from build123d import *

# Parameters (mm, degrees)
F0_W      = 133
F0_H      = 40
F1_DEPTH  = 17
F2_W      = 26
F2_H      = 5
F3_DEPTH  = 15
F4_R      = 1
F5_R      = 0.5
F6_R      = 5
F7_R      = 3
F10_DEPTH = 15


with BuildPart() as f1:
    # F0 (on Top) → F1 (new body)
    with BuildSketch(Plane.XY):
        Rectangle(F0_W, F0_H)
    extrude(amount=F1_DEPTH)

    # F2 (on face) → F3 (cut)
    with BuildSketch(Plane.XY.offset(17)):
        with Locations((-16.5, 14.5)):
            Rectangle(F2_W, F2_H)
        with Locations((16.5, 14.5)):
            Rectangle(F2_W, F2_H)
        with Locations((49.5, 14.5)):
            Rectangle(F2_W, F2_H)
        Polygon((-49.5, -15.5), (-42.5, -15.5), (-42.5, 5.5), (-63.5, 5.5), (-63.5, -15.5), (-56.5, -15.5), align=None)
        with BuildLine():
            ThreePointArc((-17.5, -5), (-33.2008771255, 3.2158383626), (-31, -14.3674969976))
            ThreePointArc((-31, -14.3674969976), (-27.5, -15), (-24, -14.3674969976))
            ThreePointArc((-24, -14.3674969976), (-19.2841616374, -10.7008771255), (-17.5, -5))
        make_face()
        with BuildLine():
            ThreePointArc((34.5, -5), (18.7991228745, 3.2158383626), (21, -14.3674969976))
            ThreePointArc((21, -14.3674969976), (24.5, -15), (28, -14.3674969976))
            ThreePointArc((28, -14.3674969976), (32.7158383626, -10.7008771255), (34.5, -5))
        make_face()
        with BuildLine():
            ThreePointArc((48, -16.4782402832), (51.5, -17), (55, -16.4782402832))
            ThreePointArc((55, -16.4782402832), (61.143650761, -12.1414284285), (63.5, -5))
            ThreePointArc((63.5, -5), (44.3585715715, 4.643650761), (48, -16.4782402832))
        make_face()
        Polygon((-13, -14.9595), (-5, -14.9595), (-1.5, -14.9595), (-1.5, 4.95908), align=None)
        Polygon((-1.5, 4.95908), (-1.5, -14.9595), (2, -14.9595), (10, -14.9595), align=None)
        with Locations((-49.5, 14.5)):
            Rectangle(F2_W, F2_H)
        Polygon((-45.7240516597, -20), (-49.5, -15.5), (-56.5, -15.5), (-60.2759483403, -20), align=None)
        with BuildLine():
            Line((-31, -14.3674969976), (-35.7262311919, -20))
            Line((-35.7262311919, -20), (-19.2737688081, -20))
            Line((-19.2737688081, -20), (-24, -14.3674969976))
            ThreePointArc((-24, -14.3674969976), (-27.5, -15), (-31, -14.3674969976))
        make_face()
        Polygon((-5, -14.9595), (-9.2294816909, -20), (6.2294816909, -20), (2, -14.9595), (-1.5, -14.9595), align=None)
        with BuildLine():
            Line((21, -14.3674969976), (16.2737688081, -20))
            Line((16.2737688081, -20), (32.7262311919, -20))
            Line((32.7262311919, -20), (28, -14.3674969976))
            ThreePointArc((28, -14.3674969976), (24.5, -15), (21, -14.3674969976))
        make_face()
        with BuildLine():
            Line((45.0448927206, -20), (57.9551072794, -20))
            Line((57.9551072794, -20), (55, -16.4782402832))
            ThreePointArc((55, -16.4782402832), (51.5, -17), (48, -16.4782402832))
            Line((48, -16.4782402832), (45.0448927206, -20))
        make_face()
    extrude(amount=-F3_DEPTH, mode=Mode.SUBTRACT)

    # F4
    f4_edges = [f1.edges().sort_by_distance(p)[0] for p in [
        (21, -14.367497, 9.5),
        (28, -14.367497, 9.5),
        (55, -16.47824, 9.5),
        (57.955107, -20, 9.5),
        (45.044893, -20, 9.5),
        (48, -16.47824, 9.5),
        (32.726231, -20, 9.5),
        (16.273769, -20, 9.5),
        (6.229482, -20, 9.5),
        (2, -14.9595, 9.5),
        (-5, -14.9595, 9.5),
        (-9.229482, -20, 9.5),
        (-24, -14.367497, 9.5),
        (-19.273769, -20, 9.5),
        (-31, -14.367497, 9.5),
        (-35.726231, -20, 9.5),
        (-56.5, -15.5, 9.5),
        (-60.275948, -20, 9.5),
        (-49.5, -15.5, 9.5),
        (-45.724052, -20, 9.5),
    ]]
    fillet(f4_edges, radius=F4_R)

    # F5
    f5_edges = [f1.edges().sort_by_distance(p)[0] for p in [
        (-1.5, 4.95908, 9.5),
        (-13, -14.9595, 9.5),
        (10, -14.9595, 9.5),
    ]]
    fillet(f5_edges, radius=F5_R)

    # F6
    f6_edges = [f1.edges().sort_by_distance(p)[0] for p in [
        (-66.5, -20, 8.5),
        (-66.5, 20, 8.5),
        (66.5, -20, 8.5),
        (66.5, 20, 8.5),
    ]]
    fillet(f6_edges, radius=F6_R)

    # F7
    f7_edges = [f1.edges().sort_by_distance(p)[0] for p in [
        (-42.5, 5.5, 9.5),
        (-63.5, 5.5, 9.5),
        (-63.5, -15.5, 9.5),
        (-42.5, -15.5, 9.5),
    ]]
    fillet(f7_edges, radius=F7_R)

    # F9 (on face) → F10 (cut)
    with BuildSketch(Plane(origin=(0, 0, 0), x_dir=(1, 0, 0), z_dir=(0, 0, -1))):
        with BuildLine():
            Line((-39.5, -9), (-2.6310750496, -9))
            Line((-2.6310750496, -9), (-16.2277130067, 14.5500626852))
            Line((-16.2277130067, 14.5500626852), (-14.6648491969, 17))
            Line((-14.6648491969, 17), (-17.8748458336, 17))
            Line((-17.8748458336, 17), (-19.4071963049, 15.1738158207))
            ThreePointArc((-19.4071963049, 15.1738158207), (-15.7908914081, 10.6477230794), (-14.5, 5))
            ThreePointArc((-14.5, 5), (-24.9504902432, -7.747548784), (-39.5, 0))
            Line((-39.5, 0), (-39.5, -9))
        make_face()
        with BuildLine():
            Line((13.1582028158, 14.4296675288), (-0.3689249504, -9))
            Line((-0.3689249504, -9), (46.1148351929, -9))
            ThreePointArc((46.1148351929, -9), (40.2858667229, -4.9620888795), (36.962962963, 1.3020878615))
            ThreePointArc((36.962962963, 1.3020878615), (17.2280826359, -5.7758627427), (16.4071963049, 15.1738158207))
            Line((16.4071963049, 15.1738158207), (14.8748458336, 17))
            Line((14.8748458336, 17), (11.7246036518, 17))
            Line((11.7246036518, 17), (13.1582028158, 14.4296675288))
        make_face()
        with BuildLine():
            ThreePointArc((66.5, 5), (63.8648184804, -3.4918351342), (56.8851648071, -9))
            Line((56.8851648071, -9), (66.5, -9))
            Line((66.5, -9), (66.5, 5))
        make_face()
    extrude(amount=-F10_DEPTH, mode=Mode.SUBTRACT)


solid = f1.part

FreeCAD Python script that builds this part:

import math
import FreeCAD as App
import Part
import Sketcher

V = App.Vector
Q = App.Units.Quantity


def edges_at(feature, points):
    """Names of the edges that pass closest to the given points."""
    edges = feature.Shape.Edges
    near = lambda p: min(range(len(edges)), key=lambda i: edges[i].distToShape(Part.Vertex(*p))[0])
    return sorted({f"Edge{near(p) + 1}" for p in points})


def add_polygon(sketch, points):
    """Adds a closed chain of lines whose ends are joined by coincident constraints."""
    first, n = sketch.GeometryCount, len(points)
    for a, b in zip(points, points[1:] + points[:1]):
        sketch.addGeometry(Part.LineSegment(App.Vector(*a, 0), App.Vector(*b, 0)), False)
    for i in range(n):
        sketch.addConstraint(Sketcher.Constraint("Coincident", first + i, 2, first + (i + 1) % n, 1))

doc = App.newDocument("Part")
body = doc.addObject("PartDesign::Body", "Body")

# Sketch on XY plane
sketch1 = doc.addObject("Sketcher::SketchObject", "Sketch")
body.addObject(sketch1)
sketch1.AttachmentSupport = (doc.XY_Plane, [""])
sketch1.MapMode = "FlatFace"
add_polygon(sketch1, [(-66.5, 20), (-66.5, -20), (66.5, -20), (66.5, 20)])  # lines 0-3
sketch1.addConstraint(Sketcher.Constraint("Vertical", 0))
sketch1.addConstraint(Sketcher.Constraint("Horizontal", 1))
sketch1.addConstraint(Sketcher.Constraint("Vertical", 2))
sketch1.addConstraint(Sketcher.Constraint("Horizontal", 3))
sketch1.addConstraint(Sketcher.Constraint("Symmetric", 0, 2, 2, 2, -1, 1))
sketch1.addConstraint(Sketcher.Constraint("DistanceX", 1, 1, 1, 2, 133.0))
sketch1.addConstraint(Sketcher.Constraint("DistanceY", 0, 2, 0, 1, 40.0))
pad1 = doc.addObject("PartDesign::Pad", "Pad")
body.addObject(pad1)
pad1.Profile = sketch1
pad1.Length = 17

# Sketch on XY plane
sketch2 = doc.addObject("Sketcher::SketchObject", "Sketch001")
body.addObject(sketch2)
sketch2.AttachmentSupport = (doc.XY_Plane, [""])
sketch2.MapMode = "FlatFace"
sketch2.AttachmentOffset = App.Placement(V(0, 0, 17), App.Rotation())
add_polygon(sketch2, [(-29.5, 17), (-29.5, 12), (-3.5, 12), (-3.5, 17)])  # lines 0-3
add_polygon(sketch2, [(3.5, 17), (3.5, 12), (29.5, 12), (29.5, 17)])  # lines 4-7
add_polygon(sketch2, [(36.5, 17), (36.5, 12), (62.5, 12), (62.5, 17)])  # lines 8-11
add_polygon(sketch2, [(-42.5, -15.5), (-42.5, 5.5), (-63.5, 5.5), (-63.5, -15.5), (-56.5, -15.5), (-60.275948, -20), (-45.724052, -20), (-49.5, -15.5)])  # lines 12-19
sketch2.addGeometry(Part.ArcOfCircle(Part.Circle(V(-27.5, -5, 0), V(0, 0, 1), 10), math.radians(0), math.radians(249.512685)), False)  # 20
sketch2.addGeometry(Part.LineSegment(V(-31, -14.367497, 0), V(-35.726231, -20, 0)), False)  # 21
sketch2.addGeometry(Part.LineSegment(V(-35.726231, -20, 0), V(-19.273769, -20, 0)), False)  # 22
sketch2.addGeometry(Part.LineSegment(V(-19.273769, -20, 0), V(-24, -14.367497, 0)), False)  # 23
sketch2.addGeometry(Part.ArcOfCircle(Part.Circle(V(-27.5, -5, 0), V(0, 0, 1), 10), math.radians(-69.512685), math.radians(0)), False)  # 24
sketch2.addGeometry(Part.ArcOfCircle(Part.Circle(V(24.5, -5, 0), V(0, 0, 1), 10), math.radians(0), math.radians(249.512685)), False)  # 25
sketch2.addGeometry(Part.LineSegment(V(21, -14.367497, 0), V(16.273769, -20, 0)), False)  # 26
sketch2.addGeometry(Part.LineSegment(V(16.273769, -20, 0), V(32.726231, -20, 0)), False)  # 27
sketch2.addGeometry(Part.LineSegment(V(32.726231, -20, 0), V(28, -14.367497, 0)), False)  # 28
sketch2.addGeometry(Part.ArcOfCircle(Part.Circle(V(24.5, -5, 0), V(0, 0, 1), 10), math.radians(-69.512685), math.radians(0)), False)  # 29
sketch2.addGeometry(Part.ArcOfCircle(Part.Circle(V(51.5, -5, 0), V(0, 0, 1), 12), math.radians(-73.042237), math.radians(253.042237)), False)  # 30
sketch2.addGeometry(Part.LineSegment(V(48, -16.47824, 0), V(45.044893, -20, 0)), False)  # 31
sketch2.addGeometry(Part.LineSegment(V(45.044893, -20, 0), V(57.955107, -20, 0)), False)  # 32
sketch2.addGeometry(Part.LineSegment(V(57.955107, -20, 0), V(55, -16.47824, 0)), False)  # 33
add_polygon(sketch2, [(-13, -14.9595), (-5, -14.9595), (-9.229482, -20), (6.229482, -20), (2, -14.9595), (10, -14.9595), (-1.5, 4.95908)])  # lines 34-40
add_polygon(sketch2, [(-62.5, 17), (-62.5, 12), (-36.5, 12), (-36.5, 17)])  # lines 41-44
sketch2.addConstraint(Sketcher.Constraint("Coincident", 20, 2, 21, 1))
sketch2.addConstraint(Sketcher.Constraint("Coincident", 21, 2, 22, 1))
sketch2.addConstraint(Sketcher.Constraint("Coincident", 22, 2, 23, 1))
sketch2.addConstraint(Sketcher.Constraint("Coincident", 23, 2, 24, 1))
sketch2.addConstraint(Sketcher.Constraint("Tangent", 24, 2, 20, 1))
sketch2.addConstraint(Sketcher.Constraint("Coincident", 25, 2, 26, 1))
sketch2.addConstraint(Sketcher.Constraint("Coincident", 26, 2, 27, 1))
sketch2.addConstraint(Sketcher.Constraint("Coincident", 27, 2, 28, 1))
sketch2.addConstraint(Sketcher.Constraint("Coincident", 28, 2, 29, 1))
sketch2.addConstraint(Sketcher.Constraint("Tangent", 29, 2, 25, 1))
sketch2.addConstraint(Sketcher.Constraint("Coincident", 30, 2, 31, 1))
sketch2.addConstraint(Sketcher.Constraint("Coincident", 31, 2, 32, 1))
sketch2.addConstraint(Sketcher.Constraint("Coincident", 32, 2, 33, 1))
sketch2.addConstraint(Sketcher.Constraint("Coincident", 33, 2, 30, 1))
sketch2.addConstraint(Sketcher.Constraint("Vertical", 0))
sketch2.addConstraint(Sketcher.Constraint("Horizontal", 1))
sketch2.addConstraint(Sketcher.Constraint("Vertical", 2))
sketch2.addConstraint(Sketcher.Constraint("Horizontal", 3))
sketch2.addConstraint(Sketcher.Constraint("Vertical", 4))
sketch2.addConstraint(Sketcher.Constraint("Horizontal", 5))
sketch2.addConstraint(Sketcher.Constraint("Vertical", 6))
sketch2.addConstraint(Sketcher.Constraint("Horizontal", 7))
sketch2.addConstraint(Sketcher.Constraint("Vertical", 8))
sketch2.addConstraint(Sketcher.Constraint("Horizontal", 9))
sketch2.addConstraint(Sketcher.Constraint("Vertical", 10))
sketch2.addConstraint(Sketcher.Constraint("Horizontal", 11))
sketch2.addConstraint(Sketcher.Constraint("Vertical", 12))
sketch2.addConstraint(Sketcher.Constraint("Horizontal", 13))
sketch2.addConstraint(Sketcher.Constraint("Vertical", 14))
sketch2.addConstraint(Sketcher.Constraint("Horizontal", 15))
sketch2.addConstraint(Sketcher.Constraint("Horizontal", 17))
sketch2.addConstraint(Sketcher.Constraint("Horizontal", 19))
sketch2.addConstraint(Sketcher.Constraint("Horizontal", 22))
sketch2.addConstraint(Sketcher.Constraint("Horizontal", 27))
sketch2.addConstraint(Sketcher.Constraint("Horizontal", 32))
sketch2.addConstraint(Sketcher.Constraint("Horizontal", 34))
sketch2.addConstraint(Sketcher.Constraint("Horizontal", 36))
sketch2.addConstraint(Sketcher.Constraint("Horizontal", 38))
sketch2.addConstraint(Sketcher.Constraint("Vertical", 41))
sketch2.addConstraint(Sketcher.Constraint("Horizontal", 42))
sketch2.addConstraint(Sketcher.Constraint("Vertical", 43))
sketch2.addConstraint(Sketcher.Constraint("Horizontal", 44))
sketch2.addConstraint(Sketcher.Constraint("Equal", 20, 24))
sketch2.addConstraint(Sketcher.Constraint("Equal", 24, 25))
sketch2.addConstraint(Sketcher.Constraint("Equal", 25, 29))
sketch2.addConstraint(Sketcher.Constraint("Symmetric", 1, 2, 4, 2, -2))
sketch2.addConstraint(Sketcher.Constraint("Symmetric", 3, 2, 6, 2, -2))
sketch2.addConstraint(Sketcher.Constraint("Symmetric", 9, 2, 41, 2, -2))
sketch2.addConstraint(Sketcher.Constraint("Symmetric", 11, 2, 43, 2, -2))
sketch2.addConstraint(Sketcher.Constraint("Parallel", 16, 21))
sketch2.addConstraint(Sketcher.Constraint("Parallel", 18, 23))
sketch2.addConstraint(Sketcher.Constraint("Parallel", 21, 26))
sketch2.addConstraint(Sketcher.Constraint("Parallel", 23, 28))
sketch2.addConstraint(Sketcher.Constraint("Parallel", 26, 31))
sketch2.addConstraint(Sketcher.Constraint("Parallel", 28, 33))
sketch2.addConstraint(Sketcher.Constraint("Parallel", 31, 35))
sketch2.addConstraint(Sketcher.Constraint("Parallel", 33, 37))
sketch2.addConstraint(Sketcher.Constraint("Horizontal", 24, 3, 25, 3))
sketch2.addConstraint(Sketcher.Constraint("Horizontal", 29, 3, 30, 3))
sketch2.addConstraint(Sketcher.Constraint("Horizontal", 5, 2, 8, 2))
sketch2.addConstraint(Sketcher.Constraint("Horizontal", 7, 2, 10, 2))
sketch2.addConstraint(Sketcher.Constraint("Horizontal", 15, 2, 18, 2))
sketch2.addConstraint(Sketcher.Constraint("Horizontal", 17, 2, 21, 2))
sketch2.addConstraint(Sketcher.Constraint("Horizontal", 20, 2, 23, 2))
sketch2.addConstraint(Sketcher.Constraint("Horizontal", 30, 3, 24, 2))
sketch2.addConstraint(Sketcher.Constraint("Horizontal", 23, 2, 25, 2))
sketch2.addConstraint(Sketcher.Constraint("Horizontal", 22, 2, 26, 2))
sketch2.addConstraint(Sketcher.Constraint("Horizontal", 25, 2, 28, 2))
sketch2.addConstraint(Sketcher.Constraint("Horizontal", 24, 2, 29, 2))
sketch2.addConstraint(Sketcher.Constraint("Horizontal", 27, 2, 31, 2))
sketch2.addConstraint(Sketcher.Constraint("Horizontal", 30, 2, 33, 2))
sketch2.addConstraint(Sketcher.Constraint("Horizontal", 32, 2, 35, 2))
sketch2.addConstraint(Sketcher.Constraint("Horizontal", 34, 2, 37, 2))
sketch2.addConstraint(Sketcher.Constraint("Equal", 7, 9))
sketch2.addConstraint(Sketcher.Constraint("Equal", 15, 19))
sketch2.addConstraint(Sketcher.Constraint("Equal", 34, 38))
sketch2.addConstraint(Sketcher.Constraint("Equal", 13, 12))
sketch2.addConstraint(Sketcher.Constraint("Equal", 16, 18))
sketch2.addConstraint(Sketcher.Constraint("Equal", 39, 40))
sketch2.addConstraint(Sketcher.Constraint("Radius", 20, 10.0))
sketch2.addConstraint(Sketcher.Constraint("Radius", 30, 12.0))
sketch2.addConstraint(Sketcher.Constraint("DistanceX", 1, 1, 1, 2, 26.0))
sketch2.addConstraint(Sketcher.Constraint("DistanceX", 13, 2, 13, 1, 21.0))
sketch2.addConstraint(Sketcher.Constraint("DistanceX", 15, 1, 15, 2, 7.0))
sketch2.addConstraint(Sketcher.Constraint("DistanceX", 34, 1, 34, 2, 8.0))
sketch2.addConstraint(Sketcher.Constraint("DistanceY", 0, 2, 0, 1, 5.0))
sketch2.addConstraint(Sketcher.Constraint("Angle", 16, Q("-130 deg")))
sketch2.addConstraint(Sketcher.Constraint("Angle", 39, Q("120.000005 deg")))
sketch2.addConstraint(Sketcher.Constraint("DistanceY", 20, 3, -1, 1, 5.0))
sketch2.addConstraint(Sketcher.Constraint("DistanceY", -1, 1, 0, 2, 12.0))
sketch2.addConstraint(Sketcher.Constraint("DistanceY", 16, 2, -1, 1, 20.0))
sketch2.addConstraint(Sketcher.Constraint("DistanceX", 20, 2, -1, 1, 31.0))
sketch2.addConstraint(Sketcher.Constraint("DistanceX", 23, 2, -1, 1, 24.0))
sketch2.addConstraint(Sketcher.Constraint("DistanceX", -1, 1, 25, 2, 21.0))
sketch2.addConstraint(Sketcher.Constraint("DistanceX", -1, 1, 30, 2, 48.0))
sketch2.addConstraint(Sketcher.Constraint("DistanceX", -1, 1, 33, 2, 55.0))
sketch2.addConstraint(Sketcher.Constraint("DistanceX", 34, 2, -1, 1, 5.0))
sketch2.addConstraint(Sketcher.Constraint("DistanceX", -1, 1, 37, 2, 2.0))
sketch2.addConstraint(Sketcher.Constraint("DistanceX", 0, 2, 20, 3, 2.0))
sketch2.addConstraint(Sketcher.Constraint("DistanceX", 5, 2, 8, 2, 7.0))
sketch2.addConstraint(Sketcher.Constraint("DistanceX", 12, 2, 0, 2, 13.0))
sketch2.addConstraint(Sketcher.Constraint("DistanceY", -1, 1, 12, 2, 5.5))
sketch2.addConstraint(Sketcher.Constraint("DistanceY", 34, 2, -1, 1, 14.9595))
pocket1 = doc.addObject("PartDesign::Pocket", "Pocket")
body.addObject(pocket1)
pocket1.Profile = sketch2
pocket1.Length = 15
doc.recompute()

fillet = doc.addObject("PartDesign::Fillet", "Fillet")
body.addObject(fillet)
fillet.Base = (pocket1, edges_at(pocket1, [
    (21, -14.367, 9.5),
    (28, -14.367, 9.5),
    (55, -16.478, 9.5),
    (57.955, -20, 9.5),
    (45.045, -20, 9.5),
    (48, -16.478, 9.5),
    (32.726, -20, 9.5),
    (16.274, -20, 9.5),
    (6.229, -20, 9.5),
    (2, -14.96, 9.5),
    (-5, -14.96, 9.5),
    (-9.229, -20, 9.5),
    (-24, -14.367, 9.5),
    (-19.274, -20, 9.5),
    (-31, -14.367, 9.5),
    (-35.726, -20, 9.5),
    (-56.5, -15.5, 9.5),
    (-60.276, -20, 9.5),
    (-49.5, -15.5, 9.5),
    (-45.724, -20, 9.5),
]))
fillet.Radius = 1
doc.recompute()

fillet2 = doc.addObject("PartDesign::Fillet", "Fillet001")
body.addObject(fillet2)
fillet2.Base = (fillet, edges_at(fillet, [(-1.5, 4.959, 9.5), (-13, -14.96, 9.5), (10, -14.96, 9.5)]))
fillet2.Radius = 0.5
doc.recompute()

fillet3 = doc.addObject("PartDesign::Fillet", "Fillet002")
body.addObject(fillet3)
fillet3.Base = (fillet2, edges_at(fillet2, [
    (-66.5, -20, 8.5),
    (-66.5, 20, 8.5),
    (66.5, -20, 8.5),
    (66.5, 20, 8.5),
]))
fillet3.Radius = 5
doc.recompute()

fillet4 = doc.addObject("PartDesign::Fillet", "Fillet003")
body.addObject(fillet4)
fillet4.Base = (fillet3, edges_at(fillet3, [
    (-42.5, 5.5, 9.5),
    (-63.5, 5.5, 9.5),
    (-63.5, -15.5, 9.5),
    (-42.5, -15.5, 9.5),
]))
fillet4.Radius = 3

# Sketch on XY plane
sketch3 = doc.addObject("Sketcher::SketchObject", "Sketch002")
body.addObject(sketch3)
sketch3.AttachmentSupport = (doc.XY_Plane, [""])
sketch3.MapMode = "FlatFace"
sketch3.addGeometry(Part.LineSegment(V(-39.5, 9, 0), V(-2.631075, 9, 0)), False)
sketch3.addGeometry(Part.LineSegment(V(-2.631075, 9, 0), V(-16.227713, -14.550063, 0)), False)
sketch3.addGeometry(Part.LineSegment(V(-16.227713, -14.550063, 0), V(-14.664849, -17, 0)), False)
sketch3.addGeometry(Part.LineSegment(V(-14.664849, -17, 0), V(-17.874846, -17, 0)), False)
sketch3.addGeometry(Part.LineSegment(V(-17.874846, -17, 0), V(-19.407196, -15.173816, 0)), False)
sketch3.addGeometry(Part.ArcOfCircle(Part.Circle(V(-27.5, -5, 0), V(0, 0, 1), 13), math.radians(-51.499361), math.radians(0)), False)
sketch3.addGeometry(Part.ArcOfCircle(Part.Circle(V(-27.5, -5, 0), V(0, 0, 1), 13), math.radians(0), math.radians(157.380135)), False)
sketch3.addGeometry(Part.LineSegment(V(-39.5, 0, 0), V(-39.5, 9, 0)), False)
sketch3.addGeometry(Part.LineSegment(V(13.158203, -14.429668, 0), V(-0.368925, 9, 0)), False)
sketch3.addGeometry(Part.LineSegment(V(-0.368925, 9, 0), V(46.114835, 9, 0)), False)
sketch3.addGeometry(Part.ArcOfCircle(Part.Circle(V(51.5, -5, 0), V(0, 0, 1), 15), math.radians(111.03947), math.radians(165.727879)), False)
sketch3.addGeometry(Part.ArcOfCircle(Part.Circle(V(24.5, -5, 0), V(0, 0, 1), 13), math.radians(16.526261), math.radians(231.499361)), False)
sketch3.addGeometry(Part.LineSegment(V(16.407196, -15.173816, 0), V(14.874846, -17, 0)), False)
sketch3.addGeometry(Part.LineSegment(V(14.874846, -17, 0), V(11.724604, -17, 0)), False)
sketch3.addGeometry(Part.LineSegment(V(11.724604, -17, 0), V(13.158203, -14.429668, 0)), False)
sketch3.addGeometry(Part.ArcOfCircle(Part.Circle(V(51.5, -5, 0), V(0, 0, 1), 15), math.radians(0), math.radians(68.96053)), False)
sketch3.addGeometry(Part.LineSegment(V(56.885165, 9, 0), V(66.5, 9, 0)), False)
sketch3.addGeometry(Part.LineSegment(V(66.5, 9, 0), V(66.5, -5, 0)), False)
sketch3.addConstraint(Sketcher.Constraint("Coincident", 0, 2, 1, 1))
sketch3.addConstraint(Sketcher.Constraint("Coincident", 1, 2, 2, 1))
sketch3.addConstraint(Sketcher.Constraint("Coincident", 2, 2, 3, 1))
sketch3.addConstraint(Sketcher.Constraint("Coincident", 3, 2, 4, 1))
sketch3.addConstraint(Sketcher.Constraint("Coincident", 4, 2, 5, 1))
sketch3.addConstraint(Sketcher.Constraint("Tangent", 5, 2, 6, 1))
sketch3.addConstraint(Sketcher.Constraint("Coincident", 6, 2, 7, 1))
sketch3.addConstraint(Sketcher.Constraint("Coincident", 7, 2, 0, 1))
sketch3.addConstraint(Sketcher.Constraint("Coincident", 8, 2, 9, 1))
sketch3.addConstraint(Sketcher.Constraint("Coincident", 9, 2, 10, 1))
sketch3.addConstraint(Sketcher.Constraint("Coincident", 10, 2, 11, 1))
sketch3.addConstraint(Sketcher.Constraint("Coincident", 11, 2, 12, 1))
sketch3.addConstraint(Sketcher.Constraint("Coincident", 12, 2, 13, 1))
sketch3.addConstraint(Sketcher.Constraint("Coincident", 13, 2, 14, 1))
sketch3.addConstraint(Sketcher.Constraint("Coincident", 14, 2, 8, 1))
sketch3.addConstraint(Sketcher.Constraint("Coincident", 15, 2, 16, 1))
sketch3.addConstraint(Sketcher.Constraint("Coincident", 16, 2, 17, 1))
sketch3.addConstraint(Sketcher.Constraint("Tangent", 17, 2, 15, 1))
sketch3.addConstraint(Sketcher.Constraint("Horizontal", 0))
sketch3.addConstraint(Sketcher.Constraint("Horizontal", 3))
sketch3.addConstraint(Sketcher.Constraint("Vertical", 7))
sketch3.addConstraint(Sketcher.Constraint("Horizontal", 9))
sketch3.addConstraint(Sketcher.Constraint("Horizontal", 13))
sketch3.addConstraint(Sketcher.Constraint("Horizontal", 16))
sketch3.addConstraint(Sketcher.Constraint("Vertical", 17))
sketch3.addConstraint(Sketcher.Constraint("Coincident", 15, 3, 10, 3))
sketch3.addConstraint(Sketcher.Constraint("Equal", 5, 6))
sketch3.addConstraint(Sketcher.Constraint("Equal", 6, 11))
sketch3.addConstraint(Sketcher.Constraint("Equal", 10, 15))
sketch3.addConstraint(Sketcher.Constraint("PointOnObject", 6, 2, -1))
sketch3.addConstraint(Sketcher.Constraint("Horizontal", 6, 3, 10, 3))
sketch3.addConstraint(Sketcher.Constraint("Horizontal", 10, 3, 11, 3))
sketch3.addConstraint(Sketcher.Constraint("Horizontal", 15, 3, 5, 2))
sketch3.addConstraint(Sketcher.Constraint("Horizontal", 7, 2, 8, 2))
sketch3.addConstraint(Sketcher.Constraint("Horizontal", 4, 2, 11, 2))
sketch3.addConstraint(Sketcher.Constraint("Horizontal", 3, 2, 12, 2))
sketch3.addConstraint(Sketcher.Constraint("Horizontal", 9, 2, 15, 2))
sketch3.addConstraint(Sketcher.Constraint("Equal", 4, 12))
sketch3.addConstraint(Sketcher.Constraint("Radius", 5, 13.0))
sketch3.addConstraint(Sketcher.Constraint("Radius", 10, 15.0))
sketch3.addConstraint(Sketcher.Constraint("DistanceY", 7, 1, 7, 2, 9.0))
sketch3.addConstraint(Sketcher.Constraint("DistanceY", 17, 2, 17, 1, 14.0))
sketch3.addConstraint(Sketcher.Constraint("Angle", 1, Q("-120.000005 deg")))
sketch3.addConstraint(Sketcher.Constraint("Angle", 4, Q("130 deg")))
sketch3.addConstraint(Sketcher.Constraint("Angle", 8, Q("120.000005 deg")))
sketch3.addConstraint(Sketcher.Constraint("DistanceY", 2, 2, -1, 1, 17.0))
sketch3.addConstraint(Sketcher.Constraint("DistanceX", 6, 3, 10, 3, 79.0))
sketch3.addConstraint(Sketcher.Constraint("DistanceX", 11, 3, 10, 3, 27.0))
sketch3.addConstraint(Sketcher.Constraint("DistanceX", 5, 3, -1, 1, 27.5))
sketch3.addConstraint(Sketcher.Constraint("DistanceX", 9, 1, 9, 2, 46.48376))
sketch3.addConstraint(Sketcher.Constraint("DistanceX", 13, 2, 14, 2, 1.433599))
sketch3.addConstraint(Sketcher.Constraint("Distance", 1, 27.193272))
sketch3.addConstraint(Sketcher.Constraint("Distance", 8, 27.054251))
sketch3.addConstraint(Sketcher.Constraint("DistanceX", 0, 1, 0, 2, 36.868925))
sketch3.addConstraint(Sketcher.Constraint("DistanceX", 3, 2, 3, 1, 3.209997))
sketch3.addConstraint(Sketcher.Constraint("DistanceX", 13, 2, 13, 1, 3.150242))
pocket2 = doc.addObject("PartDesign::Pocket", "Pocket001")
body.addObject(pocket2)
pocket2.Profile = sketch3
pocket2.Length = 15
pocket2.Reversed = True

doc.recompute()
